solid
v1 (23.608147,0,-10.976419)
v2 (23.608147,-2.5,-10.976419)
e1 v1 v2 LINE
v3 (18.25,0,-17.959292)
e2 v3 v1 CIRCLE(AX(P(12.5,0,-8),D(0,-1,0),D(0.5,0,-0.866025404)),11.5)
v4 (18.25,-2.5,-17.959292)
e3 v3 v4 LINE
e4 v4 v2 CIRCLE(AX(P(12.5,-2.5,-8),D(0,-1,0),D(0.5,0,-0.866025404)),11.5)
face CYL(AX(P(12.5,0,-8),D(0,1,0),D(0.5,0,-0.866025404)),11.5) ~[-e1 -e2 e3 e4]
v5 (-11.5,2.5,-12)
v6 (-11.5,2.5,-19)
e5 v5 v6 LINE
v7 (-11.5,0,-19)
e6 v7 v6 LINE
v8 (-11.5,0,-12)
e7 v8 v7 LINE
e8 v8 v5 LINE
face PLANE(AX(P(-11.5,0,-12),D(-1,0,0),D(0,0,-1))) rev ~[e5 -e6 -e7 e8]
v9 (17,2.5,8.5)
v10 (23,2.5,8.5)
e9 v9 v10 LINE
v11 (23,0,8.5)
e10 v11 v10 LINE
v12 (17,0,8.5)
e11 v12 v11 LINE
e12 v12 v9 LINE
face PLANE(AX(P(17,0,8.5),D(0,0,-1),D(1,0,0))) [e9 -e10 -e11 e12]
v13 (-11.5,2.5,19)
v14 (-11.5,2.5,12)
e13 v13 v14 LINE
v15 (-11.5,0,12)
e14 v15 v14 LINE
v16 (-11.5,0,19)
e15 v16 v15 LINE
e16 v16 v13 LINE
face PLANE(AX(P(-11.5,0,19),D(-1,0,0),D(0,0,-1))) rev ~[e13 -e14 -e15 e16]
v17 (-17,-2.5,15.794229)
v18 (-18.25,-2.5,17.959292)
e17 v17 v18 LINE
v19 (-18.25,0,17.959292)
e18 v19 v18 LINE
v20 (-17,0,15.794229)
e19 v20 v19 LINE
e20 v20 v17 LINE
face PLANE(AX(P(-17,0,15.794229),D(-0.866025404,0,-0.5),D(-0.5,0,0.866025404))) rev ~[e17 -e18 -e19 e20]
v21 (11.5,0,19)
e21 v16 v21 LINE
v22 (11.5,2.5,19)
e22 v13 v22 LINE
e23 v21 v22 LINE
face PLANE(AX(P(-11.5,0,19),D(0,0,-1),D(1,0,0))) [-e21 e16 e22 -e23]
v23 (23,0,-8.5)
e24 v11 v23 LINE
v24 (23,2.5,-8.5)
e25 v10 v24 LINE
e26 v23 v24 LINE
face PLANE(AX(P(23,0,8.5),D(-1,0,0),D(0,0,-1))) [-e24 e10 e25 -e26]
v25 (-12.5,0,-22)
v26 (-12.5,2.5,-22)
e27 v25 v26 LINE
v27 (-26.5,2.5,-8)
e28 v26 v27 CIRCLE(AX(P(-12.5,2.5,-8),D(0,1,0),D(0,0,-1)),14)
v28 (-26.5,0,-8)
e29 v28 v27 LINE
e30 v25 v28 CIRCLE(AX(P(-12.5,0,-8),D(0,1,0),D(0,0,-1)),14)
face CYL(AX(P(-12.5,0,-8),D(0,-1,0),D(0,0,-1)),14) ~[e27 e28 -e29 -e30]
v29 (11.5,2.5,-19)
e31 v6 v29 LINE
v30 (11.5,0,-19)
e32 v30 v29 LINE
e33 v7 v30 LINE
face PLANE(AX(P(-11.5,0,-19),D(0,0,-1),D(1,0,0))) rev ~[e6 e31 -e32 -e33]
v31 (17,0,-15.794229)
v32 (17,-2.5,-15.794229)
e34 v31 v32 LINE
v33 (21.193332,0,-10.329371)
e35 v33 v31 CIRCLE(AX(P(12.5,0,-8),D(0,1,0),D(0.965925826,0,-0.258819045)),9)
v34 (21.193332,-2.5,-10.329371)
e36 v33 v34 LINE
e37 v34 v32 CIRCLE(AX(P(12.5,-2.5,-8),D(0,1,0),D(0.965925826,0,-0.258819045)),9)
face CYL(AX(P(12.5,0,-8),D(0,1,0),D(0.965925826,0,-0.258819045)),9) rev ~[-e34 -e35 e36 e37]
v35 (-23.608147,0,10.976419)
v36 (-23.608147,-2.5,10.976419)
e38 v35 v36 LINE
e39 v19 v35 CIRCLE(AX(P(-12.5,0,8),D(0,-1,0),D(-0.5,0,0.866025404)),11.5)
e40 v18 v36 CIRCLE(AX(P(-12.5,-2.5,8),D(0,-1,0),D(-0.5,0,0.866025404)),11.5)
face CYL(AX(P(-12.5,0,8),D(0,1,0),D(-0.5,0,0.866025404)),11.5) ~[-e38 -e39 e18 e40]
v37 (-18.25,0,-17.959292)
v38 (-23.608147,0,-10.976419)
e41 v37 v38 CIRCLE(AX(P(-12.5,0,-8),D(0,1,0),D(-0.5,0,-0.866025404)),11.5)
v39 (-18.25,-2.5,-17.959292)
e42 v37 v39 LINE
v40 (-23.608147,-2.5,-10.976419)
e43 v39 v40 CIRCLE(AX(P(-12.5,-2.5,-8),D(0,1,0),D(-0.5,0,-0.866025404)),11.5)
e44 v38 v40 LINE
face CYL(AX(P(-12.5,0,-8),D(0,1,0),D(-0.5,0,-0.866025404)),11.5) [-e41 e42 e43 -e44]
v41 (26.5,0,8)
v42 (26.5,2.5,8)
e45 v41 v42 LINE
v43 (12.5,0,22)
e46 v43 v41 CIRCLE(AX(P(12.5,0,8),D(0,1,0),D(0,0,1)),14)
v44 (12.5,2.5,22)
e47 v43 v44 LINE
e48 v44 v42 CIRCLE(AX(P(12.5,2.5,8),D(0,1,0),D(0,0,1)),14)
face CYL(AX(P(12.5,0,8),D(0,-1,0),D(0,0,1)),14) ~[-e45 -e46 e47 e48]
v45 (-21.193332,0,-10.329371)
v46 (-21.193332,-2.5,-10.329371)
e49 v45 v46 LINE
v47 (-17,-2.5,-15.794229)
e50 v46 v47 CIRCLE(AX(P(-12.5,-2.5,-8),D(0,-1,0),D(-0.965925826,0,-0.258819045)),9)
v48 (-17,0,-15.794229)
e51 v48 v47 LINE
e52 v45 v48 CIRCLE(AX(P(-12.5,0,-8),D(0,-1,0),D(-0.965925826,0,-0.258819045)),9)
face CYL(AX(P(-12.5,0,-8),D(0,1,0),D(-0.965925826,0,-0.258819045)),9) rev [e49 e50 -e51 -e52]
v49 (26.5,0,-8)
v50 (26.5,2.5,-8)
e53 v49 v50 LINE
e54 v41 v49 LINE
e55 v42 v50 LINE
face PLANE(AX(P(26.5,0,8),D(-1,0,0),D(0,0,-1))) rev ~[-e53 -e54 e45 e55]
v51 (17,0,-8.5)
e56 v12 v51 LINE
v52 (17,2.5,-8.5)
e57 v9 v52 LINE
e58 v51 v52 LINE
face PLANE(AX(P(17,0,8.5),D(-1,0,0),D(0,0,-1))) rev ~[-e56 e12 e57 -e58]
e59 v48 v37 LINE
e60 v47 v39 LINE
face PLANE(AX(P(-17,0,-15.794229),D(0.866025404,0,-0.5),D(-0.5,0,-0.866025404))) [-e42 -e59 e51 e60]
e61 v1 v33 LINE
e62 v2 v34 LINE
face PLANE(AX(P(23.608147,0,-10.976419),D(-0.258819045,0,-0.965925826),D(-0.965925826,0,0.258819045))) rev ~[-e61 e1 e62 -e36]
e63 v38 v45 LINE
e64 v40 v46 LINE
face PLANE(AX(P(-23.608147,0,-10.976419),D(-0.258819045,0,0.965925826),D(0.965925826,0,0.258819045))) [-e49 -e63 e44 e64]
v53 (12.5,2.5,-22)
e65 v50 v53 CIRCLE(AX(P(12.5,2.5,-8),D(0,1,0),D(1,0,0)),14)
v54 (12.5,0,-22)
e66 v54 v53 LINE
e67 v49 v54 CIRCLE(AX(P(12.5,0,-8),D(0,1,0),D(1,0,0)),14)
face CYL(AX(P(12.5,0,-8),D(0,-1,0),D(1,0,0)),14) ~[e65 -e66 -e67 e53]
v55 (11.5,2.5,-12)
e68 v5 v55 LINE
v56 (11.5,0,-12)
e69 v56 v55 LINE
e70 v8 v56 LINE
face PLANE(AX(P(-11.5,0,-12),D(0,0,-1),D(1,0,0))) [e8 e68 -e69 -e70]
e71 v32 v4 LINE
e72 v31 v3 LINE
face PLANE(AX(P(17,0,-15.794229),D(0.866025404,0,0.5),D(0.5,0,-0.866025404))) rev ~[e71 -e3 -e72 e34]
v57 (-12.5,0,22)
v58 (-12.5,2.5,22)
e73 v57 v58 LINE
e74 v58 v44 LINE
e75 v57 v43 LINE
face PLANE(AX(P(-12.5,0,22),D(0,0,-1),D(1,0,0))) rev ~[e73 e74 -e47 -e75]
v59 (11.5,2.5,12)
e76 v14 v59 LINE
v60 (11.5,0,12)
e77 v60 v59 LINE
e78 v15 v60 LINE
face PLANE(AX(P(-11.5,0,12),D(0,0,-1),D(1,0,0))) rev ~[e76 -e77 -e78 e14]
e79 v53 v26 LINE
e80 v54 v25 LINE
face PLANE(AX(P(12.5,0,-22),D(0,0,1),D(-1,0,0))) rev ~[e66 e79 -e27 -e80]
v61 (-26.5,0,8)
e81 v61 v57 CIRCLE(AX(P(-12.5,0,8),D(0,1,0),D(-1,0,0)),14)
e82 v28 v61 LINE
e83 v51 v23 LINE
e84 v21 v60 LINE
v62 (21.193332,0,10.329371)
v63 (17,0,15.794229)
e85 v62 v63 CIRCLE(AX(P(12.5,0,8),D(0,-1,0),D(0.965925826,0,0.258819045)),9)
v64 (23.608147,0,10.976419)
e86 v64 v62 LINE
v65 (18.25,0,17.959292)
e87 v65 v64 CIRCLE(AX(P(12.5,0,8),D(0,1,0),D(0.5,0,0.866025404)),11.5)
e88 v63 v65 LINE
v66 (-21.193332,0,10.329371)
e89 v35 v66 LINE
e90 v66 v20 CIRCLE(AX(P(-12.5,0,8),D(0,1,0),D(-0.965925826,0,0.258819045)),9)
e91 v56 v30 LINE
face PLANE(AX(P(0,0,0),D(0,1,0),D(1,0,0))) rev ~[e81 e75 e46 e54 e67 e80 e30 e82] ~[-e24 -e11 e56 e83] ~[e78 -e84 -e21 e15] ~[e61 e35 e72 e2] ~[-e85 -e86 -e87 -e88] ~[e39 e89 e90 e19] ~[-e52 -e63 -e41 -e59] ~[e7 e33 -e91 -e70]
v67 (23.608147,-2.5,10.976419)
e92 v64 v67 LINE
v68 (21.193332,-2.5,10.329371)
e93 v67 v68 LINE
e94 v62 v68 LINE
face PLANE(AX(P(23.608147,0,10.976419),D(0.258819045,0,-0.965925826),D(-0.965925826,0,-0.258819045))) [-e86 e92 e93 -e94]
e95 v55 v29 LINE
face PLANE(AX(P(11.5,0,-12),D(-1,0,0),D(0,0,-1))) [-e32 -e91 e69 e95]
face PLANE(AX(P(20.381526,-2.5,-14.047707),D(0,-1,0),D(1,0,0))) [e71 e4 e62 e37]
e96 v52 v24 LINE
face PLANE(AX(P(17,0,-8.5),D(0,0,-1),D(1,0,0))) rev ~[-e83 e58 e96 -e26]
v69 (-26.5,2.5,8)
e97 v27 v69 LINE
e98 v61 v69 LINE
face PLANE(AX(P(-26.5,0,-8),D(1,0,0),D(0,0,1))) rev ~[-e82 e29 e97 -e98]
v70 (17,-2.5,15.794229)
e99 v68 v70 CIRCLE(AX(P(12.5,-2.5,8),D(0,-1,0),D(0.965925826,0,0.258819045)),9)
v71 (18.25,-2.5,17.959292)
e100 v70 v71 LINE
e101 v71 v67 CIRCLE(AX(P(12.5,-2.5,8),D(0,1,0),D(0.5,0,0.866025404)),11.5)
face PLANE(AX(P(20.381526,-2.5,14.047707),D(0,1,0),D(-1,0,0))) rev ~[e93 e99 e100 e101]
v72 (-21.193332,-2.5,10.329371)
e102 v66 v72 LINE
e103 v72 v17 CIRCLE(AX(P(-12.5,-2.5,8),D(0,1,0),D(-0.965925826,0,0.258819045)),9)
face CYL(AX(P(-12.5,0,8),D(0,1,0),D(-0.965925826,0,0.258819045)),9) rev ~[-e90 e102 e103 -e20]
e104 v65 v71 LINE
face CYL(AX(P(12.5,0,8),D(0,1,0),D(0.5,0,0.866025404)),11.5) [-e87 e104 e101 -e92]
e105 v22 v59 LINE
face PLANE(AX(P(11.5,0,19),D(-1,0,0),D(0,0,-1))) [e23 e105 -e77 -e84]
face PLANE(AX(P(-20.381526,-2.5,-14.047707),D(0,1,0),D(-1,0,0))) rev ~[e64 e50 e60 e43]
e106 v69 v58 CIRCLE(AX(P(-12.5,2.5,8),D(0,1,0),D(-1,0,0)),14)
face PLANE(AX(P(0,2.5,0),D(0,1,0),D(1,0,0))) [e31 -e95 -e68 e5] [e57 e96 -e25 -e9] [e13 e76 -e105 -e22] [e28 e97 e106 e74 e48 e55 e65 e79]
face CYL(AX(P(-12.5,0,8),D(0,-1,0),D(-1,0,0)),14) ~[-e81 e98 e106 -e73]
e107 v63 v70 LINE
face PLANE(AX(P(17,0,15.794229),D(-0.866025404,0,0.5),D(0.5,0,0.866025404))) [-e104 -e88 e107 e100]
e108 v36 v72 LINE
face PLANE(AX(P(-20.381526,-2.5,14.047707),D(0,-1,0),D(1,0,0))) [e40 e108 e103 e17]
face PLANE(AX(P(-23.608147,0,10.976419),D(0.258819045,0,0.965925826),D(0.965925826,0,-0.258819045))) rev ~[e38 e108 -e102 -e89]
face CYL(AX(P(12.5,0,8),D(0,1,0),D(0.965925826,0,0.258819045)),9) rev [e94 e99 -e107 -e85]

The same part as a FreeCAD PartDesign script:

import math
import FreeCAD as App
import Part
import Sketcher

V = App.Vector
Q = App.Units.Quantity

doc = App.newDocument("Part")
body = doc.addObject("PartDesign::Body", "Body")

# Sketch on XZ plane
sketch1 = doc.addObject("Sketcher::SketchObject", "Sketch")
body.addObject(sketch1)
sketch1.AttachmentSupport = (doc.XZ_Plane, [""])
sketch1.MapMode = "FlatFace"
sketch1.addGeometry([
    Part.LineSegment(V(-26, -8, 0), V(-26, 8, 0)),  # 0
    Part.ArcOfCircle(Part.Circle(V(-13, 8, 0), V(0, 0, 1), 14), math.radians(90), math.radians(180)),  # 1
    Part.LineSegment(V(-12, 22, 0), V(12, 22, 0)),  # 2
    Part.ArcOfCircle(Part.Circle(V(13, 8, 0), V(0, 0, 1), 14), math.radians(0), math.radians(90)),  # 3
    Part.LineSegment(V(26, 8, 0), V(26, -8, 0)),  # 4
    Part.ArcOfCircle(Part.Circle(V(13, -8, 0), V(0, 0, 1), 14), math.radians(-90), math.radians(0)),  # 5
    Part.LineSegment(V(12, -22, 0), V(-12, -22, 0)),  # 6
    Part.ArcOfCircle(Part.Circle(V(-13, -8, 0), V(0, 0, 1), 14), math.radians(180), math.radians(270)),  # 7
    Part.LineSegment(V(12, 19, 0), V(-12, 19, 0)),  # 8
    Part.LineSegment(V(-12, 19, 0), V(-12, 12, 0)),  # 9
    Part.LineSegment(V(-12, 12, 0), V(12, 12, 0)),  # 10
    Part.LineSegment(V(12, 12, 0), V(12, 19, 0)),  # 11
    Part.LineSegment(V(12, -12, 0), V(-12, -12, 0)),  # 12
    Part.LineSegment(V(-12, -12, 0), V(-12, -19, 0)),  # 13
    Part.LineSegment(V(-12, -19, 0), V(12, -19, 0)),  # 14
    Part.LineSegment(V(12, -19, 0), V(12, -12, 0)),  # 15
    Part.LineSegment(V(23, 8, 0), V(17, 8, 0)),  # 16
    Part.LineSegment(V(17, 8, 0), V(17, -8, 0)),  # 17
    Part.LineSegment(V(17, -8, 0), V(23, -8, 0)),  # 18
    Part.LineSegment(V(23, -8, 0), V(23, 8, 0)),  # 19
], False)
sketch1.addConstraint([
    Sketcher.Constraint("Tangent", 0, 2, 1, 2),
    Sketcher.Constraint("Tangent", 1, 1, 2, 1),
    Sketcher.Constraint("Tangent", 2, 2, 3, 2),
    Sketcher.Constraint("Tangent", 3, 1, 4, 1),
    Sketcher.Constraint("Tangent", 4, 2, 5, 2),
    Sketcher.Constraint("Tangent", 5, 1, 6, 1),
    Sketcher.Constraint("Tangent", 6, 2, 7, 2),
    Sketcher.Constraint("Tangent", 7, 1, 0, 1),
    Sketcher.Constraint("Coincident", 8, 2, 9, 1),
    Sketcher.Constraint("Coincident", 9, 2, 10, 1),
    Sketcher.Constraint("Coincident", 10, 2, 11, 1),
    Sketcher.Constraint("Coincident", 11, 2, 8, 1),
    Sketcher.Constraint("Coincident", 12, 2, 13, 1),
    Sketcher.Constraint("Coincident", 13, 2, 14, 1),
    Sketcher.Constraint("Coincident", 14, 2, 15, 1),
    Sketcher.Constraint("Coincident", 15, 2, 12, 1),
    Sketcher.Constraint("Coincident", 16, 2, 17, 1),
    Sketcher.Constraint("Coincident", 17, 2, 18, 1),
    Sketcher.Constraint("Coincident", 18, 2, 19, 1),
    Sketcher.Constraint("Coincident", 19, 2, 16, 1),
    Sketcher.Constraint("Vertical", 0),
    Sketcher.Constraint("Horizontal", 2),
    Sketcher.Constraint("Vertical", 4),
    Sketcher.Constraint("Horizontal", 6),
    Sketcher.Constraint("Horizontal", 8),
    Sketcher.Constraint("Vertical", 9),
    Sketcher.Constraint("Horizontal", 10),
    Sketcher.Constraint("Vertical", 11),
    Sketcher.Constraint("Horizontal", 12),
    Sketcher.Constraint("Vertical", 13),
    Sketcher.Constraint("Horizontal", 14),
    Sketcher.Constraint("Vertical", 15),
    Sketcher.Constraint("Horizontal", 16),
    Sketcher.Constraint("Vertical", 17),
    Sketcher.Constraint("Horizontal", 18),
    Sketcher.Constraint("Vertical", 19),
    Sketcher.Constraint("Equal", 1, 3),
    Sketcher.Constraint("Equal", 3, 5),
    Sketcher.Constraint("Equal", 5, 7),
    Sketcher.Constraint("Symmetric", 1, 3, 5, 3, -1, 1),
    Sketcher.Constraint("Symmetric", 10, 2, 12, 2, -1, 1),
    Sketcher.Constraint("Symmetric", 8, 2, 14, 2, -1, 1),
    Sketcher.Constraint("Vertical", 9, 2, 12, 2),
    Sketcher.Constraint("Radius", 1, Q("14 mm")),
    Sketcher.Constraint("DistanceX", 2, 1, 2, 2, Q("25 mm")),
    Sketcher.Constraint("DistanceX", 8, 2, 8, 1, Q("23 mm")),
    Sketcher.Constraint("DistanceX", 16, 2, 16, 1, Q("6 mm")),
    Sketcher.Constraint("DistanceY", 0, 1, 0, 2, Q("16 mm")),
    Sketcher.Constraint("DistanceY", 9, 2, 9, 1, Q("7 mm")),
    Sketcher.Constraint("DistanceY", 17, 2, 17, 1, Q("17 mm")),
    Sketcher.Constraint("DistanceY", -1, 1, 8, 2, Q("19 mm")),
    Sketcher.Constraint("DistanceX", -1, 1, 16, 2, Q("17 mm")),
    Sketcher.Constraint("DistanceY", -1, 1, 16, 2, Q("8.5 mm")),
])
pad1 = doc.addObject("PartDesign::Pad", "Pad")
body.addObject(pad1)
pad1.Profile = sketch1
pad1.Length = 2.5
pad1.Reversed = True

# Sketch on XZ plane
sketch2 = doc.addObject("Sketcher::SketchObject", "Sketch001")
body.addObject(sketch2)
sketch2.AttachmentSupport = (doc.XZ_Plane, [""])
sketch2.MapMode = "FlatFace"
sketch2.addGeometry([
    Part.LineSegment(V(-17, 15.8, 0), V(-18.2, 18, 0)),  # 0
    Part.ArcOfCircle(Part.Circle(V(-12.5, 8, 0), V(0, 0, 1), 11.5), math.radians(120), math.radians(165)),  # 1
    Part.LineSegment(V(-23.6, 11, 0), V(-21.2, 10.3, 0)),  # 2
    Part.ArcOfCircle(Part.Circle(V(-12.5, 8, 0), V(0, 0, 1), 9), math.radians(120), math.radians(165)),  # 3
    Part.LineSegment(V(21.2, 10.3, 0), V(23.6, 11, 0)),  # 4
    Part.ArcOfCircle(Part.Circle(V(12.5, 8, 0), V(0, 0, 1), 11.5), math.radians(15), math.radians(60)),  # 5
    Part.LineSegment(V(18.2, 18, 0), V(17, 15.8, 0)),  # 6
    Part.ArcOfCircle(Part.Circle(V(12.5, 8, 0), V(0, 0, 1), 9), math.radians(15), math.radians(60)),  # 7
    Part.LineSegment(V(17, -15.8, 0), V(18.2, -18, 0)),  # 8
    Part.ArcOfCircle(Part.Circle(V(12.5, -8, 0), V(0, 0, 1), 11.5), math.radians(-60), math.radians(-15)),  # 9
    Part.LineSegment(V(23.6, -11, 0), V(21.2, -10.3, 0)),  # 10
    Part.ArcOfCircle(Part.Circle(V(12.5, -8, 0), V(0, 0, 1), 9), math.radians(-60), math.radians(-15)),  # 11
    Part.LineSegment(V(-21.2, -10.3, 0), V(-23.6, -11, 0)),  # 12
    Part.ArcOfCircle(Part.Circle(V(-12.5, -8, 0), V(0, 0, 1), 11.5), math.radians(-165), math.radians(-120)),  # 13
    Part.LineSegment(V(-18.2, -18, 0), V(-17, -15.8, 0)),  # 14
    Part.ArcOfCircle(Part.Circle(V(-12.5, -8, 0), V(0, 0, 1), 9), math.radians(-165), math.radians(-120)),  # 15
], False)
sketch2.addConstraint([
    Sketcher.Constraint("Coincident", 0, 2, 1, 1),
    Sketcher.Constraint("Coincident", 1, 2, 2, 1),
    Sketcher.Constraint("Coincident", 2, 2, 3, 2),
    Sketcher.Constraint("Coincident", 3, 1, 0, 1),
    Sketcher.Constraint("Coincident", 4, 2, 5, 1),
    Sketcher.Constraint("Coincident", 5, 2, 6, 1),
    Sketcher.Constraint("Coincident", 6, 2, 7, 2),
    Sketcher.Constraint("Coincident", 7, 1, 4, 1),
    Sketcher.Constraint("Coincident", 8, 2, 9, 1),
    Sketcher.Constraint("Coincident", 9, 2, 10, 1),
    Sketcher.Constraint("Coincident", 10, 2, 11, 2),
    Sketcher.Constraint("Coincident", 11, 1, 8, 1),
    Sketcher.Constraint("Coincident", 12, 2, 13, 1),
    Sketcher.Constraint("Coincident", 13, 2, 14, 1),
    Sketcher.Constraint("Coincident", 14, 2, 15, 2),
    Sketcher.Constraint("Coincident", 15, 1, 12, 1),
    Sketcher.Constraint("Coincident", 3, 3, 1, 3),
    Sketcher.Constraint("Coincident", 7, 3, 5, 3),
    Sketcher.Constraint("Coincident", 11, 3, 9, 3),
    Sketcher.Constraint("Coincident", 15, 3, 13, 3),
    Sketcher.Constraint("Equal", 1, 5),
    Sketcher.Constraint("Equal", 3, 7),
    Sketcher.Constraint("Equal", 5, 9),
    Sketcher.Constraint("Equal", 7, 11),
    Sketcher.Constraint("Equal", 9, 13),
    Sketcher.Constraint("Equal", 11, 15),
    Sketcher.Constraint("Symmetric", 1, 3, 9, 3, -1, 1),
    Sketcher.Constraint("Symmetric", 5, 3, 13, 3, -1, 1),
    Sketcher.Constraint("Symmetric", 1, 3, 5, 3, -2),
    Sketcher.Constraint("Parallel", 0, 8),
    Sketcher.Constraint("Parallel", 2, 10),
    Sketcher.Constraint("Parallel", 4, 12),
    Sketcher.Constraint("Parallel", 6, 14),
    Sketcher.Constraint("Horizontal", 1, 2, 4, 2),
    Sketcher.Constraint("Horizontal", 0, 2, 5, 2),
    Sketcher.Constraint("Horizontal", 3, 1, 6, 2),
    Sketcher.Constraint("Horizontal", 2, 2, 7, 1),
    Sketcher.Constraint("Horizontal", 9, 2, 12, 2),
    Sketcher.Constraint("Horizontal", 8, 2, 13, 2),
    Sketcher.Constraint("Vertical", 5, 2, 8, 2),
    Sketcher.Constraint("Vertical", 4, 2, 9, 2),
    Sketcher.Constraint("Radius", 3, Q("9 mm")),
    Sketcher.Constraint("Radius", 1, Q("11.5 mm")),
    Sketcher.Constraint("Angle", 0, Q("120 deg")),
    Sketcher.Constraint("Angle", 2, Q("-15 deg")),
    Sketcher.Constraint("DistanceY", -1, 1, 1, 3, Q("8 mm")),
    Sketcher.Constraint("DistanceX", 3, 1, -1, 1, Q("17 mm")),
    Sketcher.Constraint("DistanceX", 1, 3, 5, 3, Q("25 mm")),
    Sketcher.Constraint("DistanceY", -1, 1, 1, 2, Q("10.976419 mm")),
])
pad2 = doc.addObject("PartDesign::Pad", "Pad001")
body.addObject(pad2)
pad2.Profile = sketch2
pad2.Length = 2.5

doc.recompute()
